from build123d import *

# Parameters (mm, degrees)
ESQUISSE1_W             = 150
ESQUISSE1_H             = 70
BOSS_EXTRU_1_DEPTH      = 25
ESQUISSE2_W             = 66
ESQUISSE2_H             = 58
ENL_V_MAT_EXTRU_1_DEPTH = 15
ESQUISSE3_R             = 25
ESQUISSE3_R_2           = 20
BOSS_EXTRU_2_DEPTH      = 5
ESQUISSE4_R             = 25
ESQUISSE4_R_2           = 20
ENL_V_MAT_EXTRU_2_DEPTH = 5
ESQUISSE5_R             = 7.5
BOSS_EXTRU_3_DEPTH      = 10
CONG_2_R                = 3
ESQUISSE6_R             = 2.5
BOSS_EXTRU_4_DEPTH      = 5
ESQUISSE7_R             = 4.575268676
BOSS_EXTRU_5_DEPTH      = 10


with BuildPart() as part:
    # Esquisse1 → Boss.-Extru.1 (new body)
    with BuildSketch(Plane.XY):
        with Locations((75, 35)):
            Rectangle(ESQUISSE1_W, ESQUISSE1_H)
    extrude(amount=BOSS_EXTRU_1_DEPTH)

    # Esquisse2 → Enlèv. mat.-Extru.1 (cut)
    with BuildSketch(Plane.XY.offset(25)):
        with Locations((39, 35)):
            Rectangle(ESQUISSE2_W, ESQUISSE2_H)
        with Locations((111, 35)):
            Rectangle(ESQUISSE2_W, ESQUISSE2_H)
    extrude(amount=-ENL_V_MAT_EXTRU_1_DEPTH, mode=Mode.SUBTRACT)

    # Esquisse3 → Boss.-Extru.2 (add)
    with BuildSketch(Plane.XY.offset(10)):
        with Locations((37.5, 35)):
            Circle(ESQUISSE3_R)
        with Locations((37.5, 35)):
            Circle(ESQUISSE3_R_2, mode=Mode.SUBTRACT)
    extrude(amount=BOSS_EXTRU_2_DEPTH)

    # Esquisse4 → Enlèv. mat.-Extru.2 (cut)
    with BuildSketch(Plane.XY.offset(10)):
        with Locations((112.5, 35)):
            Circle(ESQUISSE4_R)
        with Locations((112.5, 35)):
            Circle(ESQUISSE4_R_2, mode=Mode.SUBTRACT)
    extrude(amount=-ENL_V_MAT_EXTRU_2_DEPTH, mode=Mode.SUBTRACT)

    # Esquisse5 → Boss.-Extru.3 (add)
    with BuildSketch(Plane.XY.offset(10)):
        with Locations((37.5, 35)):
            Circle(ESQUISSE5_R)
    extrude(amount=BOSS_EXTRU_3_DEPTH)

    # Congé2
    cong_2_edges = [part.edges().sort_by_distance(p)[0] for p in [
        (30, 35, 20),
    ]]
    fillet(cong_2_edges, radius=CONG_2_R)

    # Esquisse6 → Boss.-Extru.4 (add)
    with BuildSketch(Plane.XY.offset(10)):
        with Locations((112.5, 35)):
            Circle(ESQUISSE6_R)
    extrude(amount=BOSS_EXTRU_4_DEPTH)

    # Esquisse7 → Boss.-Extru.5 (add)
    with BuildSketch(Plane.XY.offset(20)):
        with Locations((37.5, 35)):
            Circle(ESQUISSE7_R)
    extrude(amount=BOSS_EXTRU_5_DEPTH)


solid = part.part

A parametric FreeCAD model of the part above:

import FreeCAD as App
import Part
import Sketcher
Q = App.Units.Quantity


def edges_at(feature, points):
    """Names of the edges that pass closest to the given points."""
    edges = feature.Shape.Edges
    near = lambda p: min(range(len(edges)), key=lambda i: edges[i].distToShape(Part.Vertex(*p))[0])
    return sorted({f"Edge{near(p) + 1}" for p in points})


def add_polygon(sketch, points):
    """Adds a closed chain of lines whose ends are joined by coincident constraints."""
    first, n = sketch.GeometryCount, len(points)
    for a, b in zip(points, points[1:] + points[:1]):
        sketch.addGeometry(Part.LineSegment(App.Vector(*a, 0), App.Vector(*b, 0)), False)
    for i in range(n):
        sketch.addConstraint(Sketcher.Constraint("Coincident", first + i, 2, first + (i + 1) % n, 1))

doc = App.newDocument("Part")
body = doc.addObject("PartDesign::Body", "Body")

sketch1 = doc.addObject("Sketcher::SketchObject", "Sketch")
body.addObject(sketch1)
sketch1.AttachmentSupport = (doc.XY_Plane, [""])
sketch1.MapMode = "FlatFace"
add_polygon(sketch1, [(0, 70), (0, 0), (150, 0), (150, 70)])
sketch1.addConstraint([
    Sketcher.Constraint("Vertical", 0),
    Sketcher.Constraint("Horizontal", 1),
    Sketcher.Constraint("Vertical", 2),
    Sketcher.Constraint("Horizontal", 3),
    Sketcher.Constraint("Coincident", 0, 2, -1, 1),
    Sketcher.Constraint("DistanceX", 1, 1, 1, 2, Q("150 mm")),
    Sketcher.Constraint("DistanceY", 0, 2, 0, 1, Q("70 mm")),
])
pad1 = doc.addObject("PartDesign::Pad", "Pad")
body.addObject(pad1)
pad1.Profile = sketch1
pad1.Length = 25

sketch2 = doc.addObject("Sketcher::SketchObject", "Sketch001")
body.addObject(sketch2)
sketch2.AttachmentSupport = (doc.XY_Plane, [""])
sketch2.MapMode = "FlatFace"
sketch2.AttachmentOffset = App.Placement(App.Vector(0, 0, 25), App.Rotation())
add_polygon(sketch2, [(6, 64), (6, 6), (72, 6), (72, 64)])
add_polygon(sketch2, [(78, 64), (78, 6), (144, 6), (144, 64)])
sketch2.addConstraint([
    Sketcher.Constraint("Vertical", 0),
    Sketcher.Constraint("Horizontal", 1),
    Sketcher.Constraint("Vertical", 2),
    Sketcher.Constraint("Horizontal", 3),
    Sketcher.Constraint("Vertical", 4),
    Sketcher.Constraint("Horizontal", 5),
    Sketcher.Constraint("Vertical", 6),
    Sketcher.Constraint("Horizontal", 7),
    Sketcher.Constraint("Horizontal", 1, 2, 4, 2),
    Sketcher.Constraint("Horizontal", 3, 2, 6, 2),
    Sketcher.Constraint("Equal", 3, 5),
    Sketcher.Constraint("DistanceX", 1, 1, 1, 2, Q("66 mm")),
    Sketcher.Constraint("DistanceY", 0, 2, 0, 1, Q("58 mm")),
    Sketcher.Constraint("DistanceX", -1, 1, 0, 2, Q("6 mm")),
    Sketcher.Constraint("DistanceY", -1, 1, 0, 2, Q("6 mm")),
    Sketcher.Constraint("DistanceX", -1, 1, 4, 2, Q("78 mm")),
])
pocket1 = doc.addObject("PartDesign::Pocket", "Pocket")
body.addObject(pocket1)
pocket1.Profile = sketch2
pocket1.Length = 15

sketch3 = doc.addObject("Sketcher::SketchObject", "Sketch002")
body.addObject(sketch3)
sketch3.AttachmentSupport = (doc.XY_Plane, [""])
sketch3.MapMode = "FlatFace"
sketch3.AttachmentOffset = App.Placement(App.Vector(0, 0, 10), App.Rotation())
sketch3.addGeometry([
    Part.Circle(App.Vector(37.5, 35, 0), App.Vector(0, 0, 1), 25),
    Part.Circle(App.Vector(37.5, 35, 0), App.Vector(0, 0, 1), 20),
], False)
sketch3.addConstraint([
    Sketcher.Constraint("Coincident", 1, 3, 0, 3),
    Sketcher.Constraint("Diameter", 0, Q("50 mm")),
    Sketcher.Constraint("Diameter", 1, Q("40 mm")),
    Sketcher.Constraint("DistanceY", -1, 1, 0, 3, Q("35 mm")),
    Sketcher.Constraint("DistanceX", -1, 1, 0, 3, Q("37.5 mm")),
])
pad2 = doc.addObject("PartDesign::Pad", "Pad001")
body.addObject(pad2)
pad2.Profile = sketch3
pad2.Length = 5

sketch4 = doc.addObject("Sketcher::SketchObject", "Sketch003")
body.addObject(sketch4)
sketch4.AttachmentSupport = (doc.XY_Plane, [""])
sketch4.MapMode = "FlatFace"
sketch4.AttachmentOffset = App.Placement(App.Vector(0, 0, 10), App.Rotation())
sketch4.addGeometry([
    Part.Circle(App.Vector(112.5, 35, 0), App.Vector(0, 0, 1), 25),
    Part.Circle(App.Vector(112.5, 35, 0), App.Vector(0, 0, 1), 20),
], False)
sketch4.addConstraint([
    Sketcher.Constraint("Coincident", 1, 3, 0, 3),
    Sketcher.Constraint("Diameter", 0, Q("50 mm")),
    Sketcher.Constraint("Diameter", 1, Q("40 mm")),
    Sketcher.Constraint("DistanceY", -1, 1, 0, 3, Q("35 mm")),
    Sketcher.Constraint("DistanceX", -1, 1, 0, 3, Q("112.5 mm")),
])
pocket2 = doc.addObject("PartDesign::Pocket", "Pocket001")
body.addObject(pocket2)
pocket2.Profile = sketch4
pocket2.Length = 5

sketch5 = doc.addObject("Sketcher::SketchObject", "Sketch004")
body.addObject(sketch5)
sketch5.AttachmentSupport = (doc.XY_Plane, [""])
sketch5.MapMode = "FlatFace"
sketch5.AttachmentOffset = App.Placement(App.Vector(0, 0, 10), App.Rotation())
sketch5.addGeometry(Part.Circle(App.Vector(37.5, 35, 0), App.Vector(0, 0, 1), 7.5), False)
sketch5.addConstraint([
    Sketcher.Constraint("Diameter", 0, Q("15 mm")),
    Sketcher.Constraint("DistanceY", -1, 1, 0, 3, Q("35 mm")),
    Sketcher.Constraint("DistanceX", -1, 1, 0, 3, Q("37.5 mm")),
])
pad3 = doc.addObject("PartDesign::Pad", "Pad002")
body.addObject(pad3)
pad3.Profile = sketch5
pad3.Length = 10
doc.recompute()

fillet = doc.addObject("PartDesign::Fillet", "Fillet")
body.addObject(fillet)
fillet.Base = (pad3, edges_at(pad3, [(30, 35, 20)]))
fillet.Radius = 3

sketch6 = doc.addObject("Sketcher::SketchObject", "Sketch005")
body.addObject(sketch6)
sketch6.AttachmentSupport = (doc.XY_Plane, [""])
sketch6.MapMode = "FlatFace"
sketch6.AttachmentOffset = App.Placement(App.Vector(0, 0, 10), App.Rotation())
sketch6.addGeometry(Part.Circle(App.Vector(112.5, 35, 0), App.Vector(0, 0, 1), 2.5), False)
sketch6.addConstraint([
    Sketcher.Constraint("Diameter", 0, Q("5 mm")),
    Sketcher.Constraint("DistanceY", -1, 1, 0, 3, Q("35 mm")),
    Sketcher.Constraint("DistanceX", -1, 1, 0, 3, Q("112.5 mm")),
])
pad4 = doc.addObject("PartDesign::Pad", "Pad003")
body.addObject(pad4)
pad4.Profile = sketch6
pad4.Length = 5

sketch7 = doc.addObject("Sketcher::SketchObject", "Sketch006")
body.addObject(sketch7)
sketch7.AttachmentSupport = (doc.XY_Plane, [""])
sketch7.MapMode = "FlatFace"
sketch7.AttachmentOffset = App.Placement(App.Vector(0, 0, 20), App.Rotation())
sketch7.addGeometry(Part.Circle(App.Vector(37.5, 35, 0), App.Vector(0, 0, 1), 4.575269), False)
sketch7.addConstraint([
    Sketcher.Constraint("DistanceY", -1, 1, 0, 3, Q("35 mm")),
    Sketcher.Constraint("DistanceX", -1, 1, 0, 3, Q("37.5 mm")),
    Sketcher.Constraint("Diameter", 0, Q("9.150537 mm")),
])
pad5 = doc.addObject("PartDesign::Pad", "Pad004")
body.addObject(pad5)
pad5.Profile = sketch7
pad5.Length = 10

doc.recompute()
